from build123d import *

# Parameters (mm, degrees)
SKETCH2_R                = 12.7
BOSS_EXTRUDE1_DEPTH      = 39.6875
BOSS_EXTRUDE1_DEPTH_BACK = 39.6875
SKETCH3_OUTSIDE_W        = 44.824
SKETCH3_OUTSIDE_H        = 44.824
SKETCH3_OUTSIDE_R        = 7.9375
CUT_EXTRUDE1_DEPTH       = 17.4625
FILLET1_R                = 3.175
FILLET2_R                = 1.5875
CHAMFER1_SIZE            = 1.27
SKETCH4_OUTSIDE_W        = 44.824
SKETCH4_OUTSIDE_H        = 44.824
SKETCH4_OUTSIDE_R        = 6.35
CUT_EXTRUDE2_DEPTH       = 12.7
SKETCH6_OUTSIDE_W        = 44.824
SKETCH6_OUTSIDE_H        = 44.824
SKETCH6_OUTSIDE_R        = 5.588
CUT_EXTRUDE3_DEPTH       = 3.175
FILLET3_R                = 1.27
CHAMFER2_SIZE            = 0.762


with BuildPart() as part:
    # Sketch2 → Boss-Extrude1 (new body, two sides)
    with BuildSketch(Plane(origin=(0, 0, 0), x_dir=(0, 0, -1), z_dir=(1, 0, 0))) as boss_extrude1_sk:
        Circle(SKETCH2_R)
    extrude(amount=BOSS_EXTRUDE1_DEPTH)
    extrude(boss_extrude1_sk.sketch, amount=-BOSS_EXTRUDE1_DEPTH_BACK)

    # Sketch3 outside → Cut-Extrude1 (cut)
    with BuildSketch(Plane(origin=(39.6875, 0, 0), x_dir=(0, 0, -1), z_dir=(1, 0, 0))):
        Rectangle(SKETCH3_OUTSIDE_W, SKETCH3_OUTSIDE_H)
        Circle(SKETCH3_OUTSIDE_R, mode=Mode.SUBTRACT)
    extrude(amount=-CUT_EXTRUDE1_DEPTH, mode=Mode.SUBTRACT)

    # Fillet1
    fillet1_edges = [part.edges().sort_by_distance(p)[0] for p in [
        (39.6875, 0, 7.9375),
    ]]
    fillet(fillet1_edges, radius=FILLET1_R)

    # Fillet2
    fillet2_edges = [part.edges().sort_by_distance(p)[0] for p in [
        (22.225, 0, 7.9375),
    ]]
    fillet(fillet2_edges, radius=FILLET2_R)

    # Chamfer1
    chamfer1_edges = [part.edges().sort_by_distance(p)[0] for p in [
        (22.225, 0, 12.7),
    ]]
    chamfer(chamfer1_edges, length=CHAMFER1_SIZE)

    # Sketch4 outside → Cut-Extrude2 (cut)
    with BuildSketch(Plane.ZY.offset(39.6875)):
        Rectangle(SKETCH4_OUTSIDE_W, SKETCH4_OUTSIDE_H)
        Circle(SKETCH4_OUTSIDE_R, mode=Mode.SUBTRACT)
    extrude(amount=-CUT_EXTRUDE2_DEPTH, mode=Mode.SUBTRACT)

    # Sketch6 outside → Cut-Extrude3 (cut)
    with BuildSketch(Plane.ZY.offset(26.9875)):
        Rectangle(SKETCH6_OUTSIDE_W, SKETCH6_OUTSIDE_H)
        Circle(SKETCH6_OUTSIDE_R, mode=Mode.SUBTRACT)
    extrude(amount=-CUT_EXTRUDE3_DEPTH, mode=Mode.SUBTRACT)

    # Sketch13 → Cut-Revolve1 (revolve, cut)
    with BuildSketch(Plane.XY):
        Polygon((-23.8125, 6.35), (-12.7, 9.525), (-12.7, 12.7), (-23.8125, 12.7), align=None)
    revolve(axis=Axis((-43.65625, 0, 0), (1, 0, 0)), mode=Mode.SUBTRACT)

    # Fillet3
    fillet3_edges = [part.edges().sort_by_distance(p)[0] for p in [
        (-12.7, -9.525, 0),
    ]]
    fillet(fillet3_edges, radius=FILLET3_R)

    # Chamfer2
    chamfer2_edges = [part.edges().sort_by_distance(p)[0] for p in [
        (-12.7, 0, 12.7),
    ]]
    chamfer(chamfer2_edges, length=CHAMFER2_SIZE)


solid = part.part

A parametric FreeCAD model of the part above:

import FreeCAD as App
import Part
import Sketcher
Q = App.Units.Quantity


def edges_at(feature, points):
    """Names of the edges that pass closest to the given points."""
    edges = feature.Shape.Edges
    near = lambda p: min(range(len(edges)), key=lambda i: edges[i].distToShape(Part.Vertex(*p))[0])
    return sorted({f"Edge{near(p) + 1}" for p in points})


def add_polygon(sketch, points):
    """Adds a closed chain of lines whose ends are joined by coincident constraints."""
    first, n = sketch.GeometryCount, len(points)
    for a, b in zip(points, points[1:] + points[:1]):
        sketch.addGeometry(Part.LineSegment(App.Vector(*a, 0), App.Vector(*b, 0)), False)
    for i in range(n):
        sketch.addConstraint(Sketcher.Constraint("Coincident", first + i, 2, first + (i + 1) % n, 1))

doc = App.newDocument("Part")
body = doc.addObject("PartDesign::Body", "Body")

# Sketch on YZ plane
sketch1 = body.newObject("Sketcher::SketchObject", "Sketch")
sketch1.AttachmentSupport = (doc.getObject("YZ_Plane"), [""])
sketch1.MapMode = "FlatFace"
sketch1.addGeometry(Part.Circle(App.Vector(0, 0, 0), App.Vector(0, 0, 1), 13), False)
sketch1.addConstraint(Sketcher.Constraint("Coincident", 0, 3, -1, 1))
sketch1.addConstraint(Sketcher.Constraint("Diameter", 0, Q("1 in")))
pad1 = body.newObject("PartDesign::Pad", "Pad")
pad1.Profile = sketch1
pad1.Type = "TwoLengths"
pad1.Length = Q("1.5625 in")
pad1.Length2 = Q("1.5625 in")

# Sketch on YZ plane
sketch2 = body.newObject("Sketcher::SketchObject", "Sketch001")
sketch2.AttachmentSupport = (doc.getObject("YZ_Plane"), [""])
sketch2.MapMode = "FlatFace"
sketch2.AttachmentOffset = App.Placement(App.Vector(0, 0, 1.5625 * 25.4), App.Rotation())
add_polygon(sketch2, [(22, 22), (-22, 22), (-22, -22), (22, -22)])  # lines 0-3
sketch2.addGeometry(Part.Circle(App.Vector(0, 0, 0), App.Vector(0, 0, 1), 8), False)  # 4
sketch2.addConstraint(Sketcher.Constraint("Horizontal", 0))
sketch2.addConstraint(Sketcher.Constraint("Vertical", 1))
sketch2.addConstraint(Sketcher.Constraint("Horizontal", 2))
sketch2.addConstraint(Sketcher.Constraint("Vertical", 3))
sketch2.addConstraint(Sketcher.Constraint("Coincident", 4, 3, -1, 1))
sketch2.addConstraint(Sketcher.Constraint("Symmetric", 0, 2, 2, 2, -1, 1))
sketch2.addConstraint(Sketcher.Constraint("Equal", 2, 1))
sketch2.addConstraint(Sketcher.Constraint("Diameter", 4, Q("0.625 in")))
sketch2.addConstraint(Sketcher.Constraint("DistanceX", 0, 2, 0, 1, 44.824))
pocket1 = body.newObject("PartDesign::Pocket", "Pocket")
pocket1.Profile = sketch2
pocket1.Length = Q("0.6875 in")
doc.recompute()

fillet = body.newObject("PartDesign::Fillet", "Fillet")
fillet.Base = (pocket1, edges_at(pocket1, [(39.688, 0, 7.938)]))
fillet.Radius = Q("0.125 in")
doc.recompute()

fillet2 = body.newObject("PartDesign::Fillet", "Fillet001")
fillet2.Base = (fillet, edges_at(fillet, [(22.225, 0, 7.938)]))
fillet2.Radius = Q("0.0625 in")
doc.recompute()

chamfer = body.newObject("PartDesign::Chamfer", "Chamfer")
chamfer.Base = (fillet2, edges_at(fillet2, [(22.225, 0, 12.7)]))
chamfer.Size = Q("0.05 in")

# Sketch on YZ plane
sketch3 = body.newObject("Sketcher::SketchObject", "Sketch002")
sketch3.AttachmentSupport = (doc.getObject("YZ_Plane"), [""])
sketch3.MapMode = "FlatFace"
sketch3.AttachmentOffset = App.Placement(App.Vector(0, 0, -1.5625 * 25.4), App.Rotation())
add_polygon(sketch3, [(22, -22), (-22, -22), (-22, 22), (22, 22)])  # lines 0-3
sketch3.addGeometry(Part.Circle(App.Vector(0, 0, 0), App.Vector(0, 0, 1), 6), False)  # 4
sketch3.addConstraint(Sketcher.Constraint("Horizontal", 0))
sketch3.addConstraint(Sketcher.Constraint("Vertical", 1))
sketch3.addConstraint(Sketcher.Constraint("Horizontal", 2))
sketch3.addConstraint(Sketcher.Constraint("Vertical", 3))
sketch3.addConstraint(Sketcher.Constraint("Coincident", 4, 3, -1, 1))
sketch3.addConstraint(Sketcher.Constraint("Symmetric", 0, 2, 2, 2, -1, 1))
sketch3.addConstraint(Sketcher.Constraint("Equal", 2, 1))
sketch3.addConstraint(Sketcher.Constraint("Diameter", 4, Q("0.5 in")))
sketch3.addConstraint(Sketcher.Constraint("DistanceX", 0, 2, 0, 1, 44.824))
pocket2 = body.newObject("PartDesign::Pocket", "Pocket001")
pocket2.Profile = sketch3
pocket2.Length = Q("0.5 in")
pocket2.Reversed = True

# Sketch on YZ plane
sketch4 = body.newObject("Sketcher::SketchObject", "Sketch003")
sketch4.AttachmentSupport = (doc.getObject("YZ_Plane"), [""])
sketch4.MapMode = "FlatFace"
sketch4.AttachmentOffset = App.Placement(App.Vector(0, 0, -1.0625 * 25.4), App.Rotation())
add_polygon(sketch4, [(22, -22), (-22, -22), (-22, 22), (22, 22)])  # lines 0-3
sketch4.addGeometry(Part.Circle(App.Vector(0, 0, 0), App.Vector(0, 0, 1), 6), False)  # 4
sketch4.addConstraint(Sketcher.Constraint("Horizontal", 0))
sketch4.addConstraint(Sketcher.Constraint("Vertical", 1))
sketch4.addConstraint(Sketcher.Constraint("Horizontal", 2))
sketch4.addConstraint(Sketcher.Constraint("Vertical", 3))
sketch4.addConstraint(Sketcher.Constraint("Coincident", 4, 3, -1, 1))
sketch4.addConstraint(Sketcher.Constraint("Symmetric", 0, 2, 2, 2, -1, 1))
sketch4.addConstraint(Sketcher.Constraint("Equal", 2, 1))
sketch4.addConstraint(Sketcher.Constraint("Diameter", 4, Q("0.44 in")))
sketch4.addConstraint(Sketcher.Constraint("DistanceX", 0, 2, 0, 1, 44.824))
pocket3 = body.newObject("PartDesign::Pocket", "Pocket002")
pocket3.Profile = sketch4
pocket3.Length = Q("0.125 in")
pocket3.Reversed = True

# Sketch on XY plane
sketch5 = body.newObject("Sketcher::SketchObject", "Sketch004")
sketch5.AttachmentSupport = (doc.getObject("XY_Plane"), [""])
sketch5.MapMode = "FlatFace"
add_polygon(sketch5, [(-23.8, 6.3), (-12.7, 9.5), (-12.7, 12.7), (-23.8, 12.7)])  # lines 0-3
sketch5.addConstraint(Sketcher.Constraint("Vertical", 1))
sketch5.addConstraint(Sketcher.Constraint("Horizontal", 2))
sketch5.addConstraint(Sketcher.Constraint("Vertical", 3))
sketch5.addConstraint(Sketcher.Constraint("DistanceY", 3, 2, 3, 1, Q("0.25 in")))
sketch5.addConstraint(Sketcher.Constraint("DistanceX", 0, 2, -1, 1, Q("0.5 in")))
sketch5.addConstraint(Sketcher.Constraint("DistanceY", -1, 1, 1, 2, Q("0.5 in")))
sketch5.addConstraint(Sketcher.Constraint("DistanceX", 2, 2, 2, 1, Q("0.4375 in")))
sketch5.addConstraint(Sketcher.Constraint("DistanceY", 1, 1, 1, 2, Q("0.125 in")))
groove = body.newObject("PartDesign::Groove", "Groove")
groove.Profile = sketch5
groove.ReferenceAxis = (sketch5, ["H_Axis"])
groove.Angle = 360
doc.recompute()

fillet3 = body.newObject("PartDesign::Fillet", "Fillet002")
fillet3.Base = (groove, edges_at(groove, [(-12.7, -9.525, 0)]))
fillet3.Radius = Q("0.05 in")
doc.recompute()

chamfer2 = body.newObject("PartDesign::Chamfer", "Chamfer001")
chamfer2.Base = (fillet3, edges_at(fillet3, [(-12.7, 0, 12.7)]))
chamfer2.Size = Q("0.03 in")

doc.recompute()
